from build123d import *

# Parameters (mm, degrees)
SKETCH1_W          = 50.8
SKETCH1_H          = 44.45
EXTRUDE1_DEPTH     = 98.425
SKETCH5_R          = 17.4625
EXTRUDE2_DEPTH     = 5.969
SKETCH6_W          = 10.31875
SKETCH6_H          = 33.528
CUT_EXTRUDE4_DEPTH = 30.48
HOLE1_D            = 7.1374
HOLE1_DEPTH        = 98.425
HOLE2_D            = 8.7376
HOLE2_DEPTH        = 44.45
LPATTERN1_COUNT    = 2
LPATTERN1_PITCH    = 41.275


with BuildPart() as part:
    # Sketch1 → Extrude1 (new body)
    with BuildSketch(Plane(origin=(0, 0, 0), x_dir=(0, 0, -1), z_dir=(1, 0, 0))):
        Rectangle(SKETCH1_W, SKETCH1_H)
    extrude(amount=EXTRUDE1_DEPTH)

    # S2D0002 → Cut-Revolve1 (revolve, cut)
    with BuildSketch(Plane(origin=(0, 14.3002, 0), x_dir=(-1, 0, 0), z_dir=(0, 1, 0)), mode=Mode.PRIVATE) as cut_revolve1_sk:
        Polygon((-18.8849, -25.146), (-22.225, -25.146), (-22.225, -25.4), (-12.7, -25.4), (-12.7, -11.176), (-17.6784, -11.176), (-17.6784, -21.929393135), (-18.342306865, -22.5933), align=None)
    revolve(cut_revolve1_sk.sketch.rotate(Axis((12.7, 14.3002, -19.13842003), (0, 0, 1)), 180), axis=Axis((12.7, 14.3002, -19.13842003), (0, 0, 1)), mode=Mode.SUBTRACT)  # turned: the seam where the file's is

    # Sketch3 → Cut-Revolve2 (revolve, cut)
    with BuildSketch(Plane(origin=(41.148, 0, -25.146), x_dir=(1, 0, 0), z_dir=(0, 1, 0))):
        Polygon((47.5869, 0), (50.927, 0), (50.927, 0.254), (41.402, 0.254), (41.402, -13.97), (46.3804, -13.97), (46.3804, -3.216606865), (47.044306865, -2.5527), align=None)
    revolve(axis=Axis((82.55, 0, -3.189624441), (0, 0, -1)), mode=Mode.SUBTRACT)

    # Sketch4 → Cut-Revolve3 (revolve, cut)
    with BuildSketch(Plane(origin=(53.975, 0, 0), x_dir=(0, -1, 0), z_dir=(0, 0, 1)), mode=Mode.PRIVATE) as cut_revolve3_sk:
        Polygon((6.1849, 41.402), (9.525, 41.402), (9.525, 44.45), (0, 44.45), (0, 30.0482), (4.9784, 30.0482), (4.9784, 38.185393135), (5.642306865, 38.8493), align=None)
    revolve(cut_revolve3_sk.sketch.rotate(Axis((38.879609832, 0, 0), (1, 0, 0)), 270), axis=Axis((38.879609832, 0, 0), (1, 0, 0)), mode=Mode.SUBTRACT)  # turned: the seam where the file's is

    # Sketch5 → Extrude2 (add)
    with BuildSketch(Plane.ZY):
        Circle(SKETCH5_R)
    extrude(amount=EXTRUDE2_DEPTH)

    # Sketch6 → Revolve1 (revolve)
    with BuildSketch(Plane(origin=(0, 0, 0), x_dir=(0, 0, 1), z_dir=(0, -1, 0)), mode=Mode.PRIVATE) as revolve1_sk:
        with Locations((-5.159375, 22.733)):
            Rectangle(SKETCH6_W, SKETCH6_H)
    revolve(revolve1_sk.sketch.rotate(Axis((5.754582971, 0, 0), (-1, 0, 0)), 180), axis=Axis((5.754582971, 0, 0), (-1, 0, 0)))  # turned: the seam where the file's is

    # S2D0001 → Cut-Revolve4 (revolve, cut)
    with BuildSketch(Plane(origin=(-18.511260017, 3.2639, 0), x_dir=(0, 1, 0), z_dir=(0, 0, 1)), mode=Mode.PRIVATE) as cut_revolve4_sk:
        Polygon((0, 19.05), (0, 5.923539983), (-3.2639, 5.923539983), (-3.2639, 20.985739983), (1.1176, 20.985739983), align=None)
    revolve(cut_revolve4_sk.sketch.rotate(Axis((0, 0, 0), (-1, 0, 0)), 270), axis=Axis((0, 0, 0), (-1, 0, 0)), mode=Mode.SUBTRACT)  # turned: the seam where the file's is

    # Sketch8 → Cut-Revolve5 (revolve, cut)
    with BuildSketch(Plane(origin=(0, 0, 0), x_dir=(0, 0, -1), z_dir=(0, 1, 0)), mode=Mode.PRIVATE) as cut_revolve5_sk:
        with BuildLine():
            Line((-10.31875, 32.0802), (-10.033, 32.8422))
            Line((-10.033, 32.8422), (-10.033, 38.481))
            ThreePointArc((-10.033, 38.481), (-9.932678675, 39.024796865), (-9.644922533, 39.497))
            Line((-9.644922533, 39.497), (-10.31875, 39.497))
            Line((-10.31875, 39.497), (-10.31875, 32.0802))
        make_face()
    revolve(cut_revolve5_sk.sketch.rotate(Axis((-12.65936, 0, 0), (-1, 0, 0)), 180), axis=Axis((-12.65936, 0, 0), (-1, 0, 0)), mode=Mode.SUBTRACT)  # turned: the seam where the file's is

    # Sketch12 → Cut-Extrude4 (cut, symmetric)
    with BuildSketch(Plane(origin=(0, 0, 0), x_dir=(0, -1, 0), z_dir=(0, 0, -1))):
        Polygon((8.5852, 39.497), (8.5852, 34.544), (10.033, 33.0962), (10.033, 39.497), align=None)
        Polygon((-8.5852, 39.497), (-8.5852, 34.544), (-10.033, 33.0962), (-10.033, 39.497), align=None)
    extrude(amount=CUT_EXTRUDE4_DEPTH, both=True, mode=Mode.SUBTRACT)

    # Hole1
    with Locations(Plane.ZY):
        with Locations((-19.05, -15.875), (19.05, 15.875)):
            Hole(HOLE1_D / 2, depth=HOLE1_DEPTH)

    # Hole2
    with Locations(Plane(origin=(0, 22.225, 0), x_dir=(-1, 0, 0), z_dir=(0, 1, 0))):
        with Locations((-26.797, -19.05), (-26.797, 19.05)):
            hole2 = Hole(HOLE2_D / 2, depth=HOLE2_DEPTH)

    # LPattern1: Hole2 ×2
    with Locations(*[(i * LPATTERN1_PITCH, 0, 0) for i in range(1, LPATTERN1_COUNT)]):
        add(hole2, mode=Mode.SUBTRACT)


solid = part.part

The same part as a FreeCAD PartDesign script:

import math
import FreeCAD as App
import Part
import Sketcher

V = App.Vector
Q = App.Units.Quantity

doc = App.newDocument("Part")
params = doc.addObject("Spreadsheet::Sheet", "Params")
for row, (alias, value) in enumerate([
    ("sketch1_height", "2 in"),
    ("sketch1_width", "1.75 in"),
    ("pad1_length", "3.875 in"),
    ("sketch2_height", "0.01 in"),
    ("sketch2_height2", "0.56 in"),
    ("sketch2_width", "0.375 in"),
    ("sketch2_width2", "0.196 in"),
    ("groove_angle", "360 deg"),
    ("sketch3_height", "0.01 in"),
    ("sketch3_height2", "0.56 in"),
    ("sketch3_width", "0.375 in"),
    ("sketch3_width2", "0.196 in"),
    ("groove2_angle", "360 deg"),
    ("sketch4_width", "0.12 in"),
    ("sketch4_width2", "0.567 in"),
    ("sketch4_height", "0.375 in"),
    ("sketch4_height2", "0.196 in"),
    ("groove3_angle", "360 deg"),
    ("sketch5_diameter", "1.375 in"),
    ("pad2_length", "0.235 in"),
    ("sketch6_width", "1.32 in"),
    ("sketch6_height", "0.40625 in"),
    ("revolution_angle", "360 deg"),
    ("sketch7_width", "0.593 in"),
    ("sketch7_length", "0.088 in"),
    ("groove4_angle", "360 deg"),
    ("sketch8_radius", "0.06 in"),
    ("sketch8_width", "0.222 in"),
    ("sketch8_width2", "0.292 in"),
    ("groove5_angle", "360 deg"),
    ("sketch9_width", "0.195 in"),
    ("sketch9_width2", "0.252 in"),
    ("pocket1_length", "2.4 in"),
    ("sketch10_diameter", "0.281 in"),
    ("hole_diameter", "0.281 in"),
    ("hole_depth", "3.875 in"),
    ("sketch11_diameter", "0.344 in"),
    ("hole2_diameter", "0.344 in"),
    ("hole2_depth", "1.75 in"),
    ("linearpattern_pitch", "1.625 in"),
], start=1):
    params.set(f"A{row}", alias)
    params.set(f"B{row}", "=" + value)
    params.setAlias(f"B{row}", alias)

body = doc.addObject("PartDesign::Body", "Body")

# Sketch on YZ plane
sketch1 = body.newObject("Sketcher::SketchObject", "Sketch")
sketch1.AttachmentSupport = (doc.getObject("YZ_Plane"), [""])
sketch1.MapMode = "FlatFace"
sketch1.addGeometry([
    Part.LineSegment(V(22, 25, 0), V(-22, 25, 0)),
    Part.LineSegment(V(-22, 25, 0), V(-22, -25, 0)),
    Part.LineSegment(V(-22, -25, 0), V(22, -25, 0)),
    Part.LineSegment(V(22, -25, 0), V(22, 25, 0)),
], False)
sketch1.addConstraint([
    Sketcher.Constraint("Coincident", 0, 2, 1, 1),
    Sketcher.Constraint("Coincident", 1, 2, 2, 1),
    Sketcher.Constraint("Coincident", 2, 2, 3, 1),
    Sketcher.Constraint("Coincident", 3, 2, 0, 1),
    Sketcher.Constraint("Horizontal", 0),
    Sketcher.Constraint("Vertical", 1),
    Sketcher.Constraint("Horizontal", 2),
    Sketcher.Constraint("Vertical", 3),
    Sketcher.Constraint("Symmetric", 0, 2, 2, 2, -1, 1),
    Sketcher.Constraint("DistanceY", 1, 2, 1, 1, Q("2 in")),
    Sketcher.Constraint("DistanceX", 0, 2, 0, 1, Q("1.75 in")),
])
sketch1.setExpression("Constraints[9]", "Params.sketch1_height")
sketch1.setExpression("Constraints[10]", "Params.sketch1_width")
pad1 = body.newObject("PartDesign::Pad", "Pad")
pad1.Profile = sketch1
pad1.setExpression("Length", "Params.pad1_length")

# Sketch on XZ plane
sketch2 = body.newObject("Sketcher::SketchObject", "Sketch001")
sketch2.AttachmentSupport = (doc.getObject("XZ_Plane"), [""])
sketch2.MapMode = "FlatFace"
sketch2.AttachmentOffset = App.Placement(V(0, 0, -0.563 * 25.4), App.Rotation())
sketch2.addGeometry([
    Part.LineSegment(V(18.88, -25.15, 0), V(22.23, -25.15, 0)),  # 0
    Part.LineSegment(V(22.23, -25.15, 0), V(22.23, -25.4, 0)),  # 1
    Part.LineSegment(V(22.23, -25.4, 0), V(12.7, -25.4, 0)),  # 2
    Part.LineSegment(V(12.7, -25.4, 0), V(12.7, -11.18, 0)),  # 3
    Part.LineSegment(V(12.7, -11.18, 0), V(17.68, -11.18, 0)),  # 4
    Part.LineSegment(V(17.68, -11.18, 0), V(17.68, -21.93, 0)),  # 5
    Part.LineSegment(V(17.68, -21.93, 0), V(18.34, -22.59, 0)),  # 6
    Part.LineSegment(V(18.34, -22.59, 0), V(18.88, -25.15, 0)),  # 7
], False)
sketch2.addGeometry(Part.LineSegment(V(12.7, -25.4, 0), V(12.7, -11.18, 0)), True)  # axis
sketch2.addConstraint([
    Sketcher.Constraint("Coincident", 0, 2, 1, 1),
    Sketcher.Constraint("Coincident", 1, 2, 2, 1),
    Sketcher.Constraint("Coincident", 2, 2, 3, 1),
    Sketcher.Constraint("Coincident", 3, 2, 4, 1),
    Sketcher.Constraint("Coincident", 4, 2, 5, 1),
    Sketcher.Constraint("Coincident", 5, 2, 6, 1),
    Sketcher.Constraint("Coincident", 6, 2, 7, 1),
    Sketcher.Constraint("Coincident", 7, 2, 0, 1),
    Sketcher.Constraint("Horizontal", 0),
    Sketcher.Constraint("Vertical", 1),
    Sketcher.Constraint("Horizontal", 2),
    Sketcher.Constraint("Vertical", 3),
    Sketcher.Constraint("Horizontal", 4),
    Sketcher.Constraint("Vertical", 5),
    Sketcher.Constraint("Vertical", 8),
    Sketcher.Constraint("Coincident", 8, 1, 2, 2),
    Sketcher.Constraint("Horizontal", 4, 2, 8, 2),
    Sketcher.Constraint("DistanceY", 1, 2, -1, 1, Q("1 in")),
    Sketcher.Constraint("Angle", 6, Q("-45 deg")),
    Sketcher.Constraint("Angle", 7, Q("-78 deg")),
    Sketcher.Constraint("DistanceY", 1, 2, 1, 1, Q("0.01 in")),
    Sketcher.Constraint("DistanceY", 3, 1, 3, 2, Q("0.56 in")),
    Sketcher.Constraint("DistanceX", -1, 1, 2, 2, Q("0.5 in")),
    Sketcher.Constraint("DistanceX", 2, 2, 2, 1, Q("0.375 in")),
    Sketcher.Constraint("DistanceX", 4, 1, 4, 2, Q("0.196 in")),
    Sketcher.Constraint("DistanceX", 0, 1, 0, 2, Q("0.1315 in")),
    Sketcher.Constraint("DistanceY", 6, 2, -1, 1, Q("0.8895 in")),
])
sketch2.setExpression("Constraints[20]", "Params.sketch2_height")
sketch2.setExpression("Constraints[21]", "Params.sketch2_height2")
sketch2.setExpression("Constraints[23]", "Params.sketch2_width")
sketch2.setExpression("Constraints[24]", "Params.sketch2_width2")
groove = body.newObject("PartDesign::Groove", "Groove")
groove.Profile = sketch2
groove.ReferenceAxis = (sketch2, ["Axis0"])
groove.setExpression("Angle", "Params.groove_angle")

# Sketch on XZ plane
sketch3 = body.newObject("Sketcher::SketchObject", "Sketch002")
sketch3.AttachmentSupport = (doc.getObject("XZ_Plane"), [""])
sketch3.MapMode = "FlatFace"
sketch3.addGeometry([
    Part.LineSegment(V(88.73, -25.15, 0), V(92.08, -25.15, 0)),  # 0
    Part.LineSegment(V(92.08, -25.15, 0), V(92.08, -25.4, 0)),  # 1
    Part.LineSegment(V(92.08, -25.4, 0), V(82.55, -25.4, 0)),  # 2
    Part.LineSegment(V(82.55, -25.4, 0), V(82.55, -11.18, 0)),  # 3
    Part.LineSegment(V(82.55, -11.18, 0), V(87.53, -11.18, 0)),  # 4
    Part.LineSegment(V(87.53, -11.18, 0), V(87.53, -21.93, 0)),  # 5
    Part.LineSegment(V(87.53, -21.93, 0), V(88.19, -22.59, 0)),  # 6
    Part.LineSegment(V(88.19, -22.59, 0), V(88.73, -25.15, 0)),  # 7
], False)
sketch3.addGeometry(Part.LineSegment(V(82.55, -11.18, 0), V(82.55, -25.4, 0)), True)  # axis
sketch3.addConstraint([
    Sketcher.Constraint("Coincident", 0, 2, 1, 1),
    Sketcher.Constraint("Coincident", 1, 2, 2, 1),
    Sketcher.Constraint("Coincident", 2, 2, 3, 1),
    Sketcher.Constraint("Coincident", 3, 2, 4, 1),
    Sketcher.Constraint("Coincident", 4, 2, 5, 1),
    Sketcher.Constraint("Coincident", 5, 2, 6, 1),
    Sketcher.Constraint("Coincident", 6, 2, 7, 1),
    Sketcher.Constraint("Coincident", 7, 2, 0, 1),
    Sketcher.Constraint("Horizontal", 0),
    Sketcher.Constraint("Vertical", 1),
    Sketcher.Constraint("Horizontal", 2),
    Sketcher.Constraint("Vertical", 3),
    Sketcher.Constraint("Horizontal", 4),
    Sketcher.Constraint("Vertical", 5),
    Sketcher.Constraint("Vertical", 8),
    Sketcher.Constraint("Coincident", 8, 1, 3, 2),
    Sketcher.Constraint("Horizontal", 1, 2, 8, 2),
    Sketcher.Constraint("DistanceY", 1, 2, -1, 1, Q("1 in")),
    Sketcher.Constraint("Angle", 6, Q("-45 deg")),
    Sketcher.Constraint("Angle", 7, Q("-78 deg")),
    Sketcher.Constraint("DistanceY", 1, 2, 1, 1, Q("0.01 in")),
    Sketcher.Constraint("DistanceY", 3, 1, 3, 2, Q("0.56 in")),
    Sketcher.Constraint("DistanceX", 2, 2, 2, 1, Q("0.375 in")),
    Sketcher.Constraint("DistanceX", 4, 1, 4, 2, Q("0.196 in")),
    Sketcher.Constraint("DistanceX", -1, 1, 2, 2, Q("3.25 in")),
    Sketcher.Constraint("DistanceX", 0, 1, 0, 2, Q("0.1315 in")),
    Sketcher.Constraint("DistanceY", 6, 2, -1, 1, Q("0.8895 in")),
])
sketch3.setExpression("Constraints[20]", "Params.sketch3_height")
sketch3.setExpression("Constraints[21]", "Params.sketch3_height2")
sketch3.setExpression("Constraints[22]", "Params.sketch3_width")
sketch3.setExpression("Constraints[23]", "Params.sketch3_width2")
groove2 = body.newObject("PartDesign::Groove", "Groove001")
groove2.Profile = sketch3
groove2.ReferenceAxis = (sketch3, ["Axis0"])
groove2.setExpression("Angle", "Params.groove2_angle")

# Sketch on XY plane
sketch4 = body.newObject("Sketcher::SketchObject", "Sketch003")
sketch4.AttachmentSupport = (doc.getObject("XY_Plane"), [""])
sketch4.MapMode = "FlatFace"
sketch4.addGeometry([
    Part.LineSegment(V(95.4, -6.2, 0), V(95.4, -9.5, 0)),  # 0
    Part.LineSegment(V(95.4, -9.5, 0), V(98.4, -9.5, 0)),  # 1
    Part.LineSegment(V(98.4, -9.5, 0), V(98.4, 0, 0)),  # 2
    Part.LineSegment(V(98.4, 0, 0), V(84, 0, 0)),  # 3
    Part.LineSegment(V(84, 0, 0), V(84, -5, 0)),  # 4
    Part.LineSegment(V(84, -5, 0), V(92.2, -5, 0)),  # 5
    Part.LineSegment(V(92.2, -5, 0), V(92.8, -5.6, 0)),  # 6
    Part.LineSegment(V(92.8, -5.6, 0), V(95.4, -6.2, 0)),  # 7
], False)
sketch4.addConstraint([
    Sketcher.Constraint("Coincident", 0, 2, 1, 1),
    Sketcher.Constraint("Coincident", 1, 2, 2, 1),
    Sketcher.Constraint("Coincident", 2, 2, 3, 1),
    Sketcher.Constraint("Coincident", 3, 2, 4, 1),
    Sketcher.Constraint("Coincident", 4, 2, 5, 1),
    Sketcher.Constraint("Coincident", 5, 2, 6, 1),
    Sketcher.Constraint("Coincident", 6, 2, 7, 1),
    Sketcher.Constraint("Coincident", 7, 2, 0, 1),
    Sketcher.Constraint("Vertical", 0),
    Sketcher.Constraint("Horizontal", 1),
    Sketcher.Constraint("Vertical", 2),
    Sketcher.Constraint("Horizontal", 3),
    Sketcher.Constraint("Vertical", 4),
    Sketcher.Constraint("Horizontal", 5),
    Sketcher.Constraint("PointOnObject", 2, 2, -1),
    Sketcher.Constraint("Angle", 6, Q("-45 deg")),
    Sketcher.Constraint("Angle", 7, Q("-12 deg")),
    Sketcher.Constraint("DistanceX", 1, 1, 1, 2, Q("0.12 in")),
    Sketcher.Constraint("DistanceX", 3, 2, 3, 1, Q("0.567 in")),
    Sketcher.Constraint("DistanceY", 2, 1, 2, 2, Q("0.375 in")),
    Sketcher.Constraint("DistanceY", 4, 2, 4, 1, Q("0.196 in")),
    Sketcher.Constraint("DistanceY", 0, 2, 0, 1, Q("0.1315 in")),
    Sketcher.Constraint("DistanceX", -1, 1, 0, 2, Q("3.755 in")),
    Sketcher.Constraint("DistanceX", -1, 1, 6, 2, Q("3.6545 in")),
])
sketch4.setExpression("Constraints[17]", "Params.sketch4_width")
sketch4.setExpression("Constraints[18]", "Params.sketch4_width2")
sketch4.setExpression("Constraints[19]", "Params.sketch4_height")
sketch4.setExpression("Constraints[20]", "Params.sketch4_height2")
groove3 = body.newObject("PartDesign::Groove", "Groove002")
groove3.Profile = sketch4
groove3.ReferenceAxis = (sketch4, ["H_Axis"])
groove3.setExpression("Angle", "Params.groove3_angle")

# Sketch on YZ plane
sketch5 = body.newObject("Sketcher::SketchObject", "Sketch004")
sketch5.AttachmentSupport = (doc.getObject("YZ_Plane"), [""])
sketch5.MapMode = "FlatFace"
sketch5.addGeometry(Part.Circle(V(0, 0, 0), V(0, 0, 1), 17), False)
sketch5.addConstraint([
    Sketcher.Constraint("Coincident", 0, 3, -1, 1),
    Sketcher.Constraint("Diameter", 0, Q("1.375 in")),
])
sketch5.setExpression("Constraints[1]", "Params.sketch5_diameter")
pad2 = body.newObject("PartDesign::Pad", "Pad001")
pad2.Profile = sketch5
pad2.setExpression("Length", "Params.pad2_length")
pad2.Reversed = True

# Sketch on XZ plane
sketch6 = body.newObject("Sketcher::SketchObject", "Sketch005")
sketch6.AttachmentSupport = (doc.getObject("XZ_Plane"), [""])
sketch6.MapMode = "FlatFace"
sketch6.addGeometry([
    Part.LineSegment(V(-39, -10, 0), V(-6, -10, 0)),
    Part.LineSegment(V(-6, -10, 0), V(-6, 0, 0)),
    Part.LineSegment(V(-6, 0, 0), V(-39, 0, 0)),
    Part.LineSegment(V(-39, 0, 0), V(-39, -10, 0)),
], False)
sketch6.addConstraint([
    Sketcher.Constraint("Coincident", 0, 2, 1, 1),
    Sketcher.Constraint("Coincident", 1, 2, 2, 1),
    Sketcher.Constraint("Coincident", 2, 2, 3, 1),
    Sketcher.Constraint("Coincident", 3, 2, 0, 1),
    Sketcher.Constraint("Horizontal", 0),
    Sketcher.Constraint("Vertical", 1),
    Sketcher.Constraint("Horizontal", 2),
    Sketcher.Constraint("Vertical", 3),
    Sketcher.Constraint("PointOnObject", 1, 2, -1),
    Sketcher.Constraint("DistanceX", 0, 1, 0, 2, Q("1.32 in")),
    Sketcher.Constraint("DistanceY", 1, 1, 1, 2, Q("0.40625 in")),
    Sketcher.Constraint("DistanceX", 0, 2, -1, 1, Q("0.235 in")),
])
sketch6.setExpression("Constraints[9]", "Params.sketch6_width")
sketch6.setExpression("Constraints[10]", "Params.sketch6_height")
revolution = body.newObject("PartDesign::Revolution", "Revolution")
revolution.Profile = sketch6
revolution.ReferenceAxis = (sketch6, ["H_Axis"])
revolution.setExpression("Angle", "Params.revolution_angle")

# Sketch on XY plane
sketch7 = body.newObject("Sketcher::SketchObject", "Sketch006")
sketch7.AttachmentSupport = (doc.getObject("XY_Plane"), [""])
sketch7.MapMode = "FlatFace"
sketch7.addGeometry([
    Part.LineSegment(V(-24.4, 3.3, 0), V(-37.6, 3.3, 0)),  # 0
    Part.LineSegment(V(-37.6, 3.3, 0), V(-39.5, 4.4, 0)),  # 1
    Part.LineSegment(V(-39.5, 4.4, 0), V(-39.5, 0, 0)),  # 2
    Part.LineSegment(V(-39.5, 0, 0), V(-24.4, 0, 0)),  # 3
    Part.LineSegment(V(-24.4, 0, 0), V(-24.4, 3.3, 0)),  # 4
], False)
sketch7.addConstraint([
    Sketcher.Constraint("Coincident", 0, 2, 1, 1),
    Sketcher.Constraint("Coincident", 1, 2, 2, 1),
    Sketcher.Constraint("Coincident", 2, 2, 3, 1),
    Sketcher.Constraint("Coincident", 3, 2, 4, 1),
    Sketcher.Constraint("Coincident", 4, 2, 0, 1),
    Sketcher.Constraint("Horizontal", 0),
    Sketcher.Constraint("Vertical", 2),
    Sketcher.Constraint("Horizontal", 3),
    Sketcher.Constraint("Vertical", 4),
    Sketcher.Constraint("PointOnObject", 2, 2, -1),
    Sketcher.Constraint("Angle", 1, Q("150 deg")),
    Sketcher.Constraint("DistanceX", 3, 1, 3, 2, Q("0.593 in")),
    Sketcher.Constraint("Distance", 1, Q("0.088 in")),
    Sketcher.Constraint("DistanceY", 2, 2, 2, 1, Q("0.1725 in")),
    Sketcher.Constraint("DistanceX", 1, 2, -1, 1, Q("1.555 in")),
])
sketch7.setExpression("Constraints[11]", "Params.sketch7_width")
sketch7.setExpression("Constraints[12]", "Params.sketch7_length")
groove4 = body.newObject("PartDesign::Groove", "Groove003")
groove4.Profile = sketch7
groove4.ReferenceAxis = (sketch7, ["H_Axis"])
groove4.setExpression("Angle", "Params.groove4_angle")

# Sketch on XZ plane
sketch8 = body.newObject("Sketcher::SketchObject", "Sketch007")
sketch8.AttachmentSupport = (doc.getObject("XZ_Plane"), [""])
sketch8.MapMode = "FlatFace"
sketch8.addGeometry([
    Part.LineSegment(V(-32.1, 10.3, 0), V(-32.8, 10, 0)),  # 0
    Part.LineSegment(V(-32.8, 10, 0), V(-38.5, 10, 0)),  # 1
    Part.ArcOfCircle(Part.Circle(V(-38.5, 8.5, 0), V(0, 0, 1), 1.5), math.radians(90), math.radians(132)),  # 2
    Part.LineSegment(V(-39.5, 9.6, 0), V(-39.5, 10.3, 0)),  # 3
    Part.LineSegment(V(-39.5, 10.3, 0), V(-32.1, 10.3, 0)),  # 4
], False)
sketch8.addConstraint([
    Sketcher.Constraint("Coincident", 0, 2, 1, 1),
    Sketcher.Constraint("Tangent", 1, 2, 2, 1),
    Sketcher.Constraint("Coincident", 2, 2, 3, 1),
    Sketcher.Constraint("Coincident", 3, 2, 4, 1),
    Sketcher.Constraint("Coincident", 4, 2, 0, 1),
    Sketcher.Constraint("Horizontal", 1),
    Sketcher.Constraint("Vertical", 3),
    Sketcher.Constraint("Horizontal", 4),
    Sketcher.Constraint("Radius", 2, Q("0.06 in")),
    Sketcher.Constraint("DistanceX", 1, 2, 1, 1, Q("0.222 in")),
    Sketcher.Constraint("DistanceX", 4, 1, 4, 2, Q("0.292 in")),
    Sketcher.Constraint("DistanceX", 2, 2, 1, 2, Q("0.04 in")),
    Sketcher.Constraint("DistanceX", 2, 3, -1, 1, Q("1.515 in")),
    Sketcher.Constraint("DistanceY", -1, 1, 2, 3, Q("0.335 in")),
    Sketcher.Constraint("DistanceY", -1, 1, 3, 2, Q("0.40625 in")),
])
sketch8.setExpression("Constraints[8]", "Params.sketch8_radius")
sketch8.setExpression("Constraints[9]", "Params.sketch8_width")
sketch8.setExpression("Constraints[10]", "Params.sketch8_width2")
groove5 = body.newObject("PartDesign::Groove", "Groove004")
groove5.Profile = sketch8
groove5.ReferenceAxis = (sketch8, ["H_Axis"])
groove5.setExpression("Angle", "Params.groove5_angle")

# Sketch on XY plane
sketch9 = body.newObject("Sketcher::SketchObject", "Sketch008")
sketch9.AttachmentSupport = (doc.getObject("XY_Plane"), [""])
sketch9.MapMode = "FlatFace"
sketch9.addGeometry([
    Part.LineSegment(V(-39.5, -8.6, 0), V(-34.5, -8.6, 0)),  # 0
    Part.LineSegment(V(-34.5, -8.6, 0), V(-33.1, -10, 0)),  # 1
    Part.LineSegment(V(-33.1, -10, 0), V(-39.5, -10, 0)),  # 2
    Part.LineSegment(V(-39.5, -10, 0), V(-39.5, -8.6, 0)),  # 3
    Part.LineSegment(V(-34.5, 8.6, 0), V(-39.5, 8.6, 0)),  # 4
    Part.LineSegment(V(-39.5, 8.6, 0), V(-39.5, 10, 0)),  # 5
    Part.LineSegment(V(-39.5, 10, 0), V(-33.1, 10, 0)),  # 6
    Part.LineSegment(V(-33.1, 10, 0), V(-34.5, 8.6, 0)),  # 7
], False)
sketch9.addConstraint([
    Sketcher.Constraint("Coincident", 0, 2, 1, 1),
    Sketcher.Constraint("Coincident", 1, 2, 2, 1),
    Sketcher.Constraint("Coincident", 2, 2, 3, 1),
    Sketcher.Constraint("Coincident", 3, 2, 0, 1),
    Sketcher.Constraint("Coincident", 4, 2, 5, 1),
    Sketcher.Constraint("Coincident", 5, 2, 6, 1),
    Sketcher.Constraint("Coincident", 6, 2, 7, 1),
    Sketcher.Constraint("Coincident", 7, 2, 4, 1),
    Sketcher.Constraint("Horizontal", 0),
    Sketcher.Constraint("Horizontal", 2),
    Sketcher.Constraint("Vertical", 3),
    Sketcher.Constraint("Horizontal", 4),
    Sketcher.Constraint("Vertical", 5),
    Sketcher.Constraint("Horizontal", 6),
    Sketcher.Constraint("Symmetric", 3, 2, 4, 2, -1),
    Sketcher.Constraint("Symmetric", 1, 2, 6, 2, -1),
    Sketcher.Constraint("Perpendicular", 1, 7),
    Sketcher.Constraint("Vertical", 0, 2, 7, 2),
    Sketcher.Constraint("DistanceX", 0, 1, 0, 2, Q("0.195 in")),
    Sketcher.Constraint("DistanceX", 2, 2, 2, 1, Q("0.252 in")),
    Sketcher.Constraint("DistanceX", 0, 2, -1, 1, Q("1.36 in")),
    Sketcher.Constraint("DistanceY", 2, 2, 5, 2, Q("0.79 in")),
])
sketch9.setExpression("Constraints[18]", "Params.sketch9_width")
sketch9.setExpression("Constraints[19]", "Params.sketch9_width2")
pocket1 = body.newObject("PartDesign::Pocket", "Pocket")
pocket1.Profile = sketch9
pocket1.setExpression("Length", "Params.pocket1_length")
pocket1.Midplane = True

# Sketch on YZ plane
sketch10 = body.newObject("Sketcher::SketchObject", "Sketch009")
sketch10.AttachmentSupport = (doc.getObject("YZ_Plane"), [""])
sketch10.MapMode = "FlatFace"
sketch10.addGeometry([
    Part.Circle(V(-15.9, -19.1, 0), V(0, 0, 1), 3.6),
    Part.Circle(V(15.9, 19.1, 0), V(0, 0, 1), 3.6),
], False)
sketch10.addConstraint([
    Sketcher.Constraint("Equal", 0, 1),
    Sketcher.Constraint("Symmetric", 0, 3, 1, 3, -1, 1),
    Sketcher.Constraint("Diameter", 0, Q("0.281 in")),
    Sketcher.Constraint("DistanceY", 0, 3, 1, 3, Q("1.5 in")),
    Sketcher.Constraint("DistanceX", 0, 3, 1, 3, Q("1.25 in")),
])
sketch10.setExpression("Constraints[2]", "Params.sketch10_diameter")
doc.recompute()
hole = body.newObject("PartDesign::Hole", "Hole")
hole.Profile = sketch10
hole.ThreadType = "None"
hole.setExpression("Diameter", "Params.hole_diameter")
hole.DepthType = "Dimension"
hole.setExpression("Depth", "Params.hole_depth")
hole.DrillPoint = "Flat"
hole.Reversed = True

# Sketch on XZ plane
sketch11 = body.newObject("Sketcher::SketchObject", "Sketch010")
sketch11.AttachmentSupport = (doc.getObject("XZ_Plane"), [""])
sketch11.MapMode = "FlatFace"
sketch11.AttachmentOffset = App.Placement(V(0, 0, -0.875 * 25.4), App.Rotation())
sketch11.addGeometry([
    Part.Circle(V(26.8, -19.1, 0), V(0, 0, 1), 4.4),
    Part.Circle(V(26.8, 19.1, 0), V(0, 0, 1), 4.4),
], False)
sketch11.addConstraint([
    Sketcher.Constraint("Equal", 0, 1),
    Sketcher.Constraint("Symmetric", 0, 3, 1, 3, -1),
    Sketcher.Constraint("Diameter", 0, Q("0.344 in")),
    Sketcher.Constraint("DistanceY", 0, 3, 1, 3, Q("1.5 in")),
    Sketcher.Constraint("DistanceX", -1, 1, 0, 3, Q("1.055 in")),
])
sketch11.setExpression("Constraints[2]", "Params.sketch11_diameter")
doc.recompute()
hole2 = body.newObject("PartDesign::Hole", "Hole001")
hole2.Profile = sketch11
hole2.ThreadType = "None"
hole2.setExpression("Diameter", "Params.hole2_diameter")
hole2.DepthType = "Dimension"
hole2.setExpression("Depth", "Params.hole2_depth")
hole2.DrillPoint = "Flat"
hole2.Reversed = True
doc.recompute()

linearpattern = body.newObject("PartDesign::LinearPattern", "LinearPattern")
linearpattern.Originals = [hole2]
linearpattern.Direction = (doc.getObject("X_Axis"), [""])
linearpattern.Mode = "offset"
linearpattern.setExpression("Offset", "Params.linearpattern_pitch")
linearpattern.Occurrences = 2
body.Tip = linearpattern

doc.recompute()
